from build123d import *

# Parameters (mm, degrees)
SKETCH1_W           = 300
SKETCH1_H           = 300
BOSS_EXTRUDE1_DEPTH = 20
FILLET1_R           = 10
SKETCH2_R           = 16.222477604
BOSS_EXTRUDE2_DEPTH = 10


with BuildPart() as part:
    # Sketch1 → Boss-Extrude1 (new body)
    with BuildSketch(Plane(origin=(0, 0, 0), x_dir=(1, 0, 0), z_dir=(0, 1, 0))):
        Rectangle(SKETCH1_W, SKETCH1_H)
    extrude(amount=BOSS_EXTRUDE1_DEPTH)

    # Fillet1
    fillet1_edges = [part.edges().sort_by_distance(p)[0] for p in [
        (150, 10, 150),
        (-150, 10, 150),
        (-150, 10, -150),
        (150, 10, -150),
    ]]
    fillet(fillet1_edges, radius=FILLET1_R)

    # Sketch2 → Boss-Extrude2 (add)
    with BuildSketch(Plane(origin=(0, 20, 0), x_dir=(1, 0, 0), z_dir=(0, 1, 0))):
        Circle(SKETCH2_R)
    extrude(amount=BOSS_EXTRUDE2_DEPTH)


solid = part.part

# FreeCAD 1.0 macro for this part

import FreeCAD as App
import Part
import Sketcher
from FreeCAD import Vector
Q = App.Units.Quantity


def edges_at(feature, points):
    """Names of the edges that pass closest to the given points."""
    edges = feature.Shape.Edges
    near = lambda p: min(range(len(edges)), key=lambda i: edges[i].distToShape(Part.Vertex(*p))[0])
    return sorted({f"Edge{near(p) + 1}" for p in points})

doc = App.newDocument("Part")
body = doc.addObject("PartDesign::Body", "Body")

sketch1 = body.newObject("Sketcher::SketchObject", "Sketch")
sketch1.AttachmentSupport = (doc.getObject("XZ_Plane"), [""])
sketch1.MapMode = "FlatFace"
sketch1.addGeometry([
    Part.LineSegment(Vector(-150, -150, 0), Vector(-150, 150, 0)),
    Part.LineSegment(Vector(-150, 150, 0), Vector(150, 150, 0)),
    Part.LineSegment(Vector(150, 150, 0), Vector(150, -150, 0)),
    Part.LineSegment(Vector(150, -150, 0), Vector(-150, -150, 0)),
], False)
sketch1.addConstraint([
    Sketcher.Constraint("Coincident", 0, 2, 1, 1),
    Sketcher.Constraint("Coincident", 1, 2, 2, 1),
    Sketcher.Constraint("Coincident", 2, 2, 3, 1),
    Sketcher.Constraint("Coincident", 3, 2, 0, 1),
    Sketcher.Constraint("Vertical", 0),
    Sketcher.Constraint("Horizontal", 1),
    Sketcher.Constraint("Vertical", 2),
    Sketcher.Constraint("Horizontal", 3),
    Sketcher.Constraint("Symmetric", 0, 2, 2, 2, -1, 1),
    Sketcher.Constraint("Equal", 3, 0),
    Sketcher.Constraint("DistanceX", 1, 1, 1, 2, Q("300 mm")),
])
pad1 = body.newObject("PartDesign::Pad", "Pad")
pad1.Profile = sketch1
pad1.Length = 20
pad1.Reversed = True
doc.recompute()

fillet = body.newObject("PartDesign::Fillet", "Fillet")
fillet.Base = (pad1, edges_at(pad1, [
    (150, 10, 150),
    (-150, 10, 150),
    (-150, 10, -150),
    (150, 10, -150),
]))
fillet.Radius = 10

sketch2 = body.newObject("Sketcher::SketchObject", "Sketch001")
sketch2.AttachmentSupport = (doc.getObject("XZ_Plane"), [""])
sketch2.MapMode = "FlatFace"
sketch2.AttachmentOffset = App.Placement(Vector(0, 0, -20), App.Rotation())
sketch2.addGeometry(Part.Circle(Vector(0, 0, 0), Vector(0, 0, 1), 16), False)
sketch2.addConstraint([
    Sketcher.Constraint("Coincident", 0, 3, -1, 1),
    Sketcher.Constraint("Diameter", 0, Q("32.444955 mm")),
])
pad2 = body.newObject("PartDesign::Pad", "Pad001")
pad2.Profile = sketch2
pad2.Length = 10
pad2.Reversed = True

doc.recompute()
